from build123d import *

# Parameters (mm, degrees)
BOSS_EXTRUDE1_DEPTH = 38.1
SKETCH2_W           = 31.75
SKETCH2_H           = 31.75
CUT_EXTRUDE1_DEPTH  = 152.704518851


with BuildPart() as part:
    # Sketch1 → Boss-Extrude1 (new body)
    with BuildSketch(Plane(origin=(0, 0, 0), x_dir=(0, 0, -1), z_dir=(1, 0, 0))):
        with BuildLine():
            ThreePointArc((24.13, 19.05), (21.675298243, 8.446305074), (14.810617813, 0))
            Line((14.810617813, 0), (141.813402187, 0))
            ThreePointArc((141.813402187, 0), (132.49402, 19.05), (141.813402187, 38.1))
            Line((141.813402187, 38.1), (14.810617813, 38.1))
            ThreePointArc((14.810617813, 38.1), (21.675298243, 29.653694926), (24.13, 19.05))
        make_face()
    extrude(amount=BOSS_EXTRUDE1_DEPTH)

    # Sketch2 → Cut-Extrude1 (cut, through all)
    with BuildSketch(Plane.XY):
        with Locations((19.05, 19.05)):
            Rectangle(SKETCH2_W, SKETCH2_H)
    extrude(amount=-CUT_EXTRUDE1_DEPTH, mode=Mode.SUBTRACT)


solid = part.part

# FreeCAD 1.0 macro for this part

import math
import FreeCAD as App
import Part
import Sketcher
from FreeCAD import Vector
Q = App.Units.Quantity

doc = App.newDocument("Part")
body = doc.addObject("PartDesign::Body", "Body")

sketch1 = body.newObject("Sketcher::SketchObject", "Sketch")
sketch1.AttachmentSupport = (doc.getObject("YZ_Plane"), [""])
sketch1.MapMode = "FlatFace"
sketch1.addGeometry(Part.ArcOfCircle(Part.Circle(Vector(19, 0, 0), Vector(0, 0, 1), 24), math.radians(-142), math.radians(-90)), False)
sketch1.addGeometry(Part.LineSegment(Vector(0, -15, 0), Vector(0, -142, 0)), False)
sketch1.addGeometry(Part.ArcOfCircle(Part.Circle(Vector(19, -157, 0), Vector(0, 0, 1), 24), math.radians(38), math.radians(142)), False)
sketch1.addGeometry(Part.LineSegment(Vector(38, -142, 0), Vector(38, -15, 0)), False)
sketch1.addGeometry(Part.ArcOfCircle(Part.Circle(Vector(19, 0, 0), Vector(0, 0, 1), 24), math.radians(-90), math.radians(-38)), False)
sketch1.addConstraint(Sketcher.Constraint("Coincident", 0, 1, 1, 1))
sketch1.addConstraint(Sketcher.Constraint("Coincident", 1, 2, 2, 2))
sketch1.addConstraint(Sketcher.Constraint("Coincident", 2, 1, 3, 1))
sketch1.addConstraint(Sketcher.Constraint("Coincident", 3, 2, 4, 2))
sketch1.addConstraint(Sketcher.Constraint("Tangent", 4, 1, 0, 2))
sketch1.addConstraint(Sketcher.Constraint("Vertical", 1))
sketch1.addConstraint(Sketcher.Constraint("Vertical", 3))
sketch1.addConstraint(Sketcher.Constraint("Equal", 0, 2))
sketch1.addConstraint(Sketcher.Constraint("Equal", 2, 4))
sketch1.addConstraint(Sketcher.Constraint("PointOnObject", 0, 3, -1))
sketch1.addConstraint(Sketcher.Constraint("PointOnObject", 0, 1, -2))
sketch1.addConstraint(Sketcher.Constraint("Horizontal", 1, 2, 2, 1))
sketch1.addConstraint(Sketcher.Constraint("Horizontal", 0, 1, 3, 2))
sketch1.addConstraint(Sketcher.Constraint("Vertical", 2, 3, 4, 1))
sketch1.addConstraint(Sketcher.Constraint("Radius", 0, Q("0.95 in")))
sketch1.addConstraint(Sketcher.Constraint("DistanceX", -1, 1, 2, 1, Q("1.5 in")))
sketch1.addConstraint(Sketcher.Constraint("DistanceY", 2, 3, -1, 1, Q("6.1663 in")))
pad1 = body.newObject("PartDesign::Pad", "Pad")
pad1.Profile = sketch1
pad1.Length = Q("1.5 in")

sketch2 = body.newObject("Sketcher::SketchObject", "Sketch001")
sketch2.AttachmentSupport = (doc.getObject("XY_Plane"), [""])
sketch2.MapMode = "FlatFace"
sketch2.addGeometry(Part.LineSegment(Vector(3, 35, 0), Vector(3, 3, 0)), False)
sketch2.addGeometry(Part.LineSegment(Vector(3, 3, 0), Vector(35, 3, 0)), False)
sketch2.addGeometry(Part.LineSegment(Vector(35, 3, 0), Vector(35, 35, 0)), False)
sketch2.addGeometry(Part.LineSegment(Vector(35, 35, 0), Vector(3, 35, 0)), False)
sketch2.addConstraint(Sketcher.Constraint("Coincident", 0, 2, 1, 1))
sketch2.addConstraint(Sketcher.Constraint("Coincident", 1, 2, 2, 1))
sketch2.addConstraint(Sketcher.Constraint("Coincident", 2, 2, 3, 1))
sketch2.addConstraint(Sketcher.Constraint("Coincident", 3, 2, 0, 1))
sketch2.addConstraint(Sketcher.Constraint("Vertical", 0))
sketch2.addConstraint(Sketcher.Constraint("Horizontal", 1))
sketch2.addConstraint(Sketcher.Constraint("Vertical", 2))
sketch2.addConstraint(Sketcher.Constraint("Horizontal", 3))
sketch2.addConstraint(Sketcher.Constraint("Equal", 3, 0))
sketch2.addConstraint(Sketcher.Constraint("DistanceX", 1, 1, 1, 2, Q("1.25 in")))
sketch2.addConstraint(Sketcher.Constraint("DistanceX", -1, 1, 0, 2, Q("0.125 in")))
sketch2.addConstraint(Sketcher.Constraint("DistanceY", -1, 1, 0, 2, Q("0.125 in")))
pocket1 = body.newObject("PartDesign::Pocket", "Pocket")
pocket1.Profile = sketch2
pocket1.Type = "ThroughAll"

doc.recompute()
